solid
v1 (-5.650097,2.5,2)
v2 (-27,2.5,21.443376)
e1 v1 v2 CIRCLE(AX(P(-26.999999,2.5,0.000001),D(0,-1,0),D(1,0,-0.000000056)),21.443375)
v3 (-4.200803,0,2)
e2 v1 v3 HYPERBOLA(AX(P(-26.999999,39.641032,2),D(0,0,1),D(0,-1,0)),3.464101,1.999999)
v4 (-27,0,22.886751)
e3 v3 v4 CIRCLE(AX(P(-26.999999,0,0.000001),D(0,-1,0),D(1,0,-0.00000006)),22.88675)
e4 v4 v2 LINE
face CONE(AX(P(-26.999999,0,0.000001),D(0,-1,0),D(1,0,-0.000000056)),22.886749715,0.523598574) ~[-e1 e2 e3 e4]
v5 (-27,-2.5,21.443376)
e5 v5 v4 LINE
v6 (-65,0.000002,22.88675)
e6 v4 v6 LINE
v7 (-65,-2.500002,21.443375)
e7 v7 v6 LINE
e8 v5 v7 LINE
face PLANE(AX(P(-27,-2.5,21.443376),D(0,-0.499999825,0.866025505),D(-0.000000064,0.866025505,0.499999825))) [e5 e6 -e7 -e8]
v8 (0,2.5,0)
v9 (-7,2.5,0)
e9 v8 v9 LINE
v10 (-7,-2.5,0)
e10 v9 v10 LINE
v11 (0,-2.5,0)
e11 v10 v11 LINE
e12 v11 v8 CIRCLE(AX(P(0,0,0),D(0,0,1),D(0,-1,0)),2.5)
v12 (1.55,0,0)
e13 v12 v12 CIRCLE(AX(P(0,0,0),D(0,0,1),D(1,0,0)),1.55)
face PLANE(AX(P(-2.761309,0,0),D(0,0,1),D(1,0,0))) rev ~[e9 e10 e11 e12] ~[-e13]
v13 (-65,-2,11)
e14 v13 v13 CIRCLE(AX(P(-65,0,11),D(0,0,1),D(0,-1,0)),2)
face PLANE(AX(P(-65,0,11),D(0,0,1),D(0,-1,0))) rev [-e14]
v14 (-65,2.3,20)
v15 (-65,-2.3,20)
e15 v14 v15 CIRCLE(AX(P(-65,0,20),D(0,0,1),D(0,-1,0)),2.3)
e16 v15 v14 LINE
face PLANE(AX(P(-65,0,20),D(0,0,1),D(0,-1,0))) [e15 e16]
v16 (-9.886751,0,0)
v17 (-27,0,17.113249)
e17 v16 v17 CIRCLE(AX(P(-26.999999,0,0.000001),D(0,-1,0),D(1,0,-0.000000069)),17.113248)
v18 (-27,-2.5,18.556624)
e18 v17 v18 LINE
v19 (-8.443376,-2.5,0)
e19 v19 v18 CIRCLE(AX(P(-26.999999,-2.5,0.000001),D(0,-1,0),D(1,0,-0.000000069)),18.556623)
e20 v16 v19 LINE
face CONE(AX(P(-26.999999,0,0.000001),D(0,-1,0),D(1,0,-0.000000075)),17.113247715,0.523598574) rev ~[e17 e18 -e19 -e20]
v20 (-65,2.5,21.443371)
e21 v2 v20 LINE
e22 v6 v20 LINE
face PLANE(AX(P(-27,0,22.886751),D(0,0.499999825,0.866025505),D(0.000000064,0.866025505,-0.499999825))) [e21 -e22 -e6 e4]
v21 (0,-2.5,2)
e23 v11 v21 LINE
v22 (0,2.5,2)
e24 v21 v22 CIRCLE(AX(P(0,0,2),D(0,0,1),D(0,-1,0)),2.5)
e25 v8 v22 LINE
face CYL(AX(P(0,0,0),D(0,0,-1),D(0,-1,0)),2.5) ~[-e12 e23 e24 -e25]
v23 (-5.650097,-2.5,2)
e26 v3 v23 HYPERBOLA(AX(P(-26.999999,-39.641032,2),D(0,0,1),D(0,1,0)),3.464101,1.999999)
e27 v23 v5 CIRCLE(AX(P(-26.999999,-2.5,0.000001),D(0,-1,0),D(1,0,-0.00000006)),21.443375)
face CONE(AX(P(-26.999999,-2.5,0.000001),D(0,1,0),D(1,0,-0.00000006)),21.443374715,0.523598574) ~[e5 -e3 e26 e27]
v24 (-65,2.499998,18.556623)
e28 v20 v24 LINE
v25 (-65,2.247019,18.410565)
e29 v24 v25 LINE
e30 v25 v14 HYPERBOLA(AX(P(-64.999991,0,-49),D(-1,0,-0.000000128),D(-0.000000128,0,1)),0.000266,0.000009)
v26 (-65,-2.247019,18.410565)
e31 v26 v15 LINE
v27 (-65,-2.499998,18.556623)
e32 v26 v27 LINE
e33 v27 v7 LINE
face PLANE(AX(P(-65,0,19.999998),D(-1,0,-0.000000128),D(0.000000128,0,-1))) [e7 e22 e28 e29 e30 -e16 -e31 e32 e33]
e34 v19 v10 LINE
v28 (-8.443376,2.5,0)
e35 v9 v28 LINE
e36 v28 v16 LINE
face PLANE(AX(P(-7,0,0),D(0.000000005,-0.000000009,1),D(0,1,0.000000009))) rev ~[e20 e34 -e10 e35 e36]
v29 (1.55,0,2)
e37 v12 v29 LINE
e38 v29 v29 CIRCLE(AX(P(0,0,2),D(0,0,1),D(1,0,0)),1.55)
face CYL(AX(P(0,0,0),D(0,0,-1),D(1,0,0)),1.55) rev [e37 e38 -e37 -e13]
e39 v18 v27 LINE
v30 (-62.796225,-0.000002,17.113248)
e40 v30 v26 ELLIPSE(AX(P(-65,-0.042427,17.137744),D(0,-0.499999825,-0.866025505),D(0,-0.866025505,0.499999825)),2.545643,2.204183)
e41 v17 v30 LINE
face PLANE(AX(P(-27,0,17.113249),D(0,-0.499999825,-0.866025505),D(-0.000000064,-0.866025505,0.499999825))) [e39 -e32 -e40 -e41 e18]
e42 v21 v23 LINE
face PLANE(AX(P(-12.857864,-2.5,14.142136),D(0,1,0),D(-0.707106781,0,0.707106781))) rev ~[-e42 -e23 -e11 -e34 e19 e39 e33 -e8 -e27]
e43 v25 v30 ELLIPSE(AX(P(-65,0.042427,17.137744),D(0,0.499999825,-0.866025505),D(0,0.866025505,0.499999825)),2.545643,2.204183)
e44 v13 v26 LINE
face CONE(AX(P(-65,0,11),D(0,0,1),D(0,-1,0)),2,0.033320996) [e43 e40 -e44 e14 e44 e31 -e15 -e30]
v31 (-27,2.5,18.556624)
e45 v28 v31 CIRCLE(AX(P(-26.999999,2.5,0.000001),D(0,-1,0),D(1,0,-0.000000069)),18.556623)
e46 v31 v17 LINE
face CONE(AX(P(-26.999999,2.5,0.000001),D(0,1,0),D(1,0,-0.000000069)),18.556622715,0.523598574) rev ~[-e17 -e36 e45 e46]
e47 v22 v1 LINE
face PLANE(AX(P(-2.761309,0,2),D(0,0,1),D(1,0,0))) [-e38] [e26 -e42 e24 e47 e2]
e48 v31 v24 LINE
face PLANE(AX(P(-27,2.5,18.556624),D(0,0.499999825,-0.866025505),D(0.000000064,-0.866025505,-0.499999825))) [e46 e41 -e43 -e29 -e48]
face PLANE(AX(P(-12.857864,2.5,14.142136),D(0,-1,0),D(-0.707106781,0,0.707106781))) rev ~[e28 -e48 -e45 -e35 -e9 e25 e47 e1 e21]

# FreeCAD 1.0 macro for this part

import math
import FreeCAD as App
import Part
import Sketcher
Q = App.Units.Quantity

doc = App.newDocument("Part")
body = doc.addObject("PartDesign::Body", "Body")

# Sketch on XY plane
sketch1 = body.newObject("Sketcher::SketchObject", "Sketch")
sketch1.AttachmentSupport = (doc.getObject("XY_Plane"), [""])
sketch1.MapMode = "FlatFace"
sketch1.addGeometry([
    Part.LineSegment(App.Vector(0, 2.5, 0), App.Vector(-7, 2.5, 0)),  # 0
    Part.LineSegment(App.Vector(-7, 2.5, 0), App.Vector(-7, -2.5, 0)),  # 1
    Part.LineSegment(App.Vector(-7, -2.5, 0), App.Vector(0, -2.5, 0)),  # 2
    Part.ArcOfCircle(Part.Circle(App.Vector(0, 0, 0), App.Vector(0, 0, 1), 2.5), math.radians(-90), math.radians(90)),  # 3
    Part.Circle(App.Vector(0, 0, 0), App.Vector(0, 0, 1), 1.55),  # 4
], False)
sketch1.addConstraint([
    Sketcher.Constraint("Coincident", 0, 2, 1, 1),
    Sketcher.Constraint("Coincident", 1, 2, 2, 1),
    Sketcher.Constraint("Tangent", 2, 2, 3, 1),
    Sketcher.Constraint("Tangent", 3, 2, 0, 1),
    Sketcher.Constraint("Horizontal", 0),
    Sketcher.Constraint("Vertical", 1),
    Sketcher.Constraint("Horizontal", 2),
    Sketcher.Constraint("Coincident", 3, 3, -1, 1),
    Sketcher.Constraint("Coincident", 4, 3, -1, 1),
    Sketcher.Constraint("Diameter", 4, Q("3.1 mm")),
    Sketcher.Constraint("Radius", 3, Q("2.5 mm")),
    Sketcher.Constraint("DistanceX", 0, 2, 0, 1, Q("7 mm")),
])
pad1 = body.newObject("PartDesign::Pad", "Pad")
pad1.Profile = sketch1
pad1.Length = 2

# Sketch on XY plane
sketch2 = body.newObject("Sketcher::SketchObject", "Sketch001")
sketch2.AttachmentSupport = (doc.getObject("XY_Plane"), [""])
sketch2.MapMode = "FlatFace"
sketch2.addGeometry([
    Part.LineSegment(App.Vector(-8.443376, -2.5, 0), App.Vector(-5.556624, -2.5, 0)),  # 0
    Part.LineSegment(App.Vector(-5.556624, -2.5, 0), App.Vector(-4.113249, 0, 0)),  # 1
    Part.LineSegment(App.Vector(-4.113249, 0, 0), App.Vector(-5.556624, 2.5, 0)),  # 2
    Part.LineSegment(App.Vector(-5.556624, 2.5, 0), App.Vector(-8.443376, 2.5, 0)),  # 3
    Part.LineSegment(App.Vector(-8.443376, 2.5, 0), App.Vector(-9.886751, 0, 0)),  # 4
    Part.LineSegment(App.Vector(-9.886751, 0, 0), App.Vector(-8.443376, -2.5, 0)),  # 5
], False)
sketch2.addConstraint([
    Sketcher.Constraint("Coincident", 0, 2, 1, 1),
    Sketcher.Constraint("Coincident", 1, 2, 2, 1),
    Sketcher.Constraint("Coincident", 2, 2, 3, 1),
    Sketcher.Constraint("Coincident", 3, 2, 4, 1),
    Sketcher.Constraint("Coincident", 4, 2, 5, 1),
    Sketcher.Constraint("Coincident", 5, 2, 0, 1),
    Sketcher.Constraint("Horizontal", 0),
    Sketcher.Constraint("Horizontal", 3),
    Sketcher.Constraint("Symmetric", 0, 2, 2, 2, -1),
    Sketcher.Constraint("PointOnObject", 1, 2, -1),
    Sketcher.Constraint("PointOnObject", 4, 2, -1),
    Sketcher.Constraint("Parallel", 1, 4),
    Sketcher.Constraint("Parallel", 2, 5),
    Sketcher.Constraint("Angle", 1, Q("60.000012 deg")),
    Sketcher.Constraint("DistanceY", 0, 2, 2, 2, Q("5 mm")),
    Sketcher.Constraint("DistanceX", 0, 1, 0, 2, Q("2.886752 mm")),
    Sketcher.Constraint("DistanceX", 1, 2, -1, 1, Q("4.113249 mm")),
])

# Sketch on XZ plane
sketch3 = body.newObject("Sketcher::SketchObject", "Sketch002")
sketch3.AttachmentSupport = (doc.getObject("XZ_Plane"), [""])
sketch3.MapMode = "FlatFace"
sketch3.addGeometry([
    Part.ArcOfCircle(Part.Circle(App.Vector(-26.999999, 0.000001, 0), App.Vector(0, 0, 1), 19.999999), math.radians(-0.000004), math.radians(90.000004)),
    Part.LineSegment(App.Vector(-27, 20, 0), App.Vector(-65, 20, 0)),
], False)
sketch3.addConstraint([
    Sketcher.Constraint("Tangent", 0, 2, 1, 1),
    Sketcher.Constraint("Horizontal", 1),
    Sketcher.Constraint("PointOnObject", 0, 3, -1),
    Sketcher.Constraint("PointOnObject", 0, 1, -1),
    Sketcher.Constraint("Radius", 0, Q("19.999999 mm")),
    Sketcher.Constraint("DistanceX", 1, 2, 1, 1, Q("38 mm")),
    Sketcher.Constraint("DistanceX", 0, 3, -1, 1, Q("26.999999 mm")),
])
doc.recompute()

additivepipe = body.newObject("PartDesign::AdditivePipe", "AdditivePipe")
additivepipe.Profile = sketch2
additivepipe.Spine = (sketch3, ["Edge1", "Edge2"])

# Sketch on YZ plane
sketch4 = body.newObject("Sketcher::SketchObject", "Sketch003")
sketch4.AttachmentSupport = (doc.getObject("YZ_Plane"), [""])
sketch4.MapMode = "FlatFace"
sketch4.AttachmentOffset = App.Placement(App.Vector(0, 0, -65), App.Rotation())
sketch4.addGeometry([
    Part.LineSegment(App.Vector(0, 20, 0), App.Vector(0, 11, 0)),
    Part.LineSegment(App.Vector(0, 11, 0), App.Vector(-2, 11, 0)),
    Part.LineSegment(App.Vector(-2, 11, 0), App.Vector(-2.3, 20, 0)),
    Part.LineSegment(App.Vector(-2.3, 20, 0), App.Vector(0, 20, 0)),
], False)
sketch4.addConstraint([
    Sketcher.Constraint("Coincident", 0, 2, 1, 1),
    Sketcher.Constraint("Coincident", 1, 2, 2, 1),
    Sketcher.Constraint("Coincident", 2, 2, 3, 1),
    Sketcher.Constraint("Coincident", 3, 2, 0, 1),
    Sketcher.Constraint("Vertical", 0),
    Sketcher.Constraint("Horizontal", 1),
    Sketcher.Constraint("Horizontal", 3),
    Sketcher.Constraint("PointOnObject", 0, 2, -2),
    Sketcher.Constraint("DistanceX", 1, 2, 1, 1, Q("2 mm")),
    Sketcher.Constraint("DistanceY", 0, 2, 0, 1, Q("9 mm")),
    Sketcher.Constraint("DistanceX", 3, 1, 3, 2, Q("2.3 mm")),
    Sketcher.Constraint("DistanceY", -1, 1, 0, 2, Q("11 mm")),
])
revolution = body.newObject("PartDesign::Revolution", "Revolution")
revolution.Profile = sketch4
revolution.ReferenceAxis = (sketch4, ["V_Axis"])
revolution.Angle = 360

doc.recompute()
